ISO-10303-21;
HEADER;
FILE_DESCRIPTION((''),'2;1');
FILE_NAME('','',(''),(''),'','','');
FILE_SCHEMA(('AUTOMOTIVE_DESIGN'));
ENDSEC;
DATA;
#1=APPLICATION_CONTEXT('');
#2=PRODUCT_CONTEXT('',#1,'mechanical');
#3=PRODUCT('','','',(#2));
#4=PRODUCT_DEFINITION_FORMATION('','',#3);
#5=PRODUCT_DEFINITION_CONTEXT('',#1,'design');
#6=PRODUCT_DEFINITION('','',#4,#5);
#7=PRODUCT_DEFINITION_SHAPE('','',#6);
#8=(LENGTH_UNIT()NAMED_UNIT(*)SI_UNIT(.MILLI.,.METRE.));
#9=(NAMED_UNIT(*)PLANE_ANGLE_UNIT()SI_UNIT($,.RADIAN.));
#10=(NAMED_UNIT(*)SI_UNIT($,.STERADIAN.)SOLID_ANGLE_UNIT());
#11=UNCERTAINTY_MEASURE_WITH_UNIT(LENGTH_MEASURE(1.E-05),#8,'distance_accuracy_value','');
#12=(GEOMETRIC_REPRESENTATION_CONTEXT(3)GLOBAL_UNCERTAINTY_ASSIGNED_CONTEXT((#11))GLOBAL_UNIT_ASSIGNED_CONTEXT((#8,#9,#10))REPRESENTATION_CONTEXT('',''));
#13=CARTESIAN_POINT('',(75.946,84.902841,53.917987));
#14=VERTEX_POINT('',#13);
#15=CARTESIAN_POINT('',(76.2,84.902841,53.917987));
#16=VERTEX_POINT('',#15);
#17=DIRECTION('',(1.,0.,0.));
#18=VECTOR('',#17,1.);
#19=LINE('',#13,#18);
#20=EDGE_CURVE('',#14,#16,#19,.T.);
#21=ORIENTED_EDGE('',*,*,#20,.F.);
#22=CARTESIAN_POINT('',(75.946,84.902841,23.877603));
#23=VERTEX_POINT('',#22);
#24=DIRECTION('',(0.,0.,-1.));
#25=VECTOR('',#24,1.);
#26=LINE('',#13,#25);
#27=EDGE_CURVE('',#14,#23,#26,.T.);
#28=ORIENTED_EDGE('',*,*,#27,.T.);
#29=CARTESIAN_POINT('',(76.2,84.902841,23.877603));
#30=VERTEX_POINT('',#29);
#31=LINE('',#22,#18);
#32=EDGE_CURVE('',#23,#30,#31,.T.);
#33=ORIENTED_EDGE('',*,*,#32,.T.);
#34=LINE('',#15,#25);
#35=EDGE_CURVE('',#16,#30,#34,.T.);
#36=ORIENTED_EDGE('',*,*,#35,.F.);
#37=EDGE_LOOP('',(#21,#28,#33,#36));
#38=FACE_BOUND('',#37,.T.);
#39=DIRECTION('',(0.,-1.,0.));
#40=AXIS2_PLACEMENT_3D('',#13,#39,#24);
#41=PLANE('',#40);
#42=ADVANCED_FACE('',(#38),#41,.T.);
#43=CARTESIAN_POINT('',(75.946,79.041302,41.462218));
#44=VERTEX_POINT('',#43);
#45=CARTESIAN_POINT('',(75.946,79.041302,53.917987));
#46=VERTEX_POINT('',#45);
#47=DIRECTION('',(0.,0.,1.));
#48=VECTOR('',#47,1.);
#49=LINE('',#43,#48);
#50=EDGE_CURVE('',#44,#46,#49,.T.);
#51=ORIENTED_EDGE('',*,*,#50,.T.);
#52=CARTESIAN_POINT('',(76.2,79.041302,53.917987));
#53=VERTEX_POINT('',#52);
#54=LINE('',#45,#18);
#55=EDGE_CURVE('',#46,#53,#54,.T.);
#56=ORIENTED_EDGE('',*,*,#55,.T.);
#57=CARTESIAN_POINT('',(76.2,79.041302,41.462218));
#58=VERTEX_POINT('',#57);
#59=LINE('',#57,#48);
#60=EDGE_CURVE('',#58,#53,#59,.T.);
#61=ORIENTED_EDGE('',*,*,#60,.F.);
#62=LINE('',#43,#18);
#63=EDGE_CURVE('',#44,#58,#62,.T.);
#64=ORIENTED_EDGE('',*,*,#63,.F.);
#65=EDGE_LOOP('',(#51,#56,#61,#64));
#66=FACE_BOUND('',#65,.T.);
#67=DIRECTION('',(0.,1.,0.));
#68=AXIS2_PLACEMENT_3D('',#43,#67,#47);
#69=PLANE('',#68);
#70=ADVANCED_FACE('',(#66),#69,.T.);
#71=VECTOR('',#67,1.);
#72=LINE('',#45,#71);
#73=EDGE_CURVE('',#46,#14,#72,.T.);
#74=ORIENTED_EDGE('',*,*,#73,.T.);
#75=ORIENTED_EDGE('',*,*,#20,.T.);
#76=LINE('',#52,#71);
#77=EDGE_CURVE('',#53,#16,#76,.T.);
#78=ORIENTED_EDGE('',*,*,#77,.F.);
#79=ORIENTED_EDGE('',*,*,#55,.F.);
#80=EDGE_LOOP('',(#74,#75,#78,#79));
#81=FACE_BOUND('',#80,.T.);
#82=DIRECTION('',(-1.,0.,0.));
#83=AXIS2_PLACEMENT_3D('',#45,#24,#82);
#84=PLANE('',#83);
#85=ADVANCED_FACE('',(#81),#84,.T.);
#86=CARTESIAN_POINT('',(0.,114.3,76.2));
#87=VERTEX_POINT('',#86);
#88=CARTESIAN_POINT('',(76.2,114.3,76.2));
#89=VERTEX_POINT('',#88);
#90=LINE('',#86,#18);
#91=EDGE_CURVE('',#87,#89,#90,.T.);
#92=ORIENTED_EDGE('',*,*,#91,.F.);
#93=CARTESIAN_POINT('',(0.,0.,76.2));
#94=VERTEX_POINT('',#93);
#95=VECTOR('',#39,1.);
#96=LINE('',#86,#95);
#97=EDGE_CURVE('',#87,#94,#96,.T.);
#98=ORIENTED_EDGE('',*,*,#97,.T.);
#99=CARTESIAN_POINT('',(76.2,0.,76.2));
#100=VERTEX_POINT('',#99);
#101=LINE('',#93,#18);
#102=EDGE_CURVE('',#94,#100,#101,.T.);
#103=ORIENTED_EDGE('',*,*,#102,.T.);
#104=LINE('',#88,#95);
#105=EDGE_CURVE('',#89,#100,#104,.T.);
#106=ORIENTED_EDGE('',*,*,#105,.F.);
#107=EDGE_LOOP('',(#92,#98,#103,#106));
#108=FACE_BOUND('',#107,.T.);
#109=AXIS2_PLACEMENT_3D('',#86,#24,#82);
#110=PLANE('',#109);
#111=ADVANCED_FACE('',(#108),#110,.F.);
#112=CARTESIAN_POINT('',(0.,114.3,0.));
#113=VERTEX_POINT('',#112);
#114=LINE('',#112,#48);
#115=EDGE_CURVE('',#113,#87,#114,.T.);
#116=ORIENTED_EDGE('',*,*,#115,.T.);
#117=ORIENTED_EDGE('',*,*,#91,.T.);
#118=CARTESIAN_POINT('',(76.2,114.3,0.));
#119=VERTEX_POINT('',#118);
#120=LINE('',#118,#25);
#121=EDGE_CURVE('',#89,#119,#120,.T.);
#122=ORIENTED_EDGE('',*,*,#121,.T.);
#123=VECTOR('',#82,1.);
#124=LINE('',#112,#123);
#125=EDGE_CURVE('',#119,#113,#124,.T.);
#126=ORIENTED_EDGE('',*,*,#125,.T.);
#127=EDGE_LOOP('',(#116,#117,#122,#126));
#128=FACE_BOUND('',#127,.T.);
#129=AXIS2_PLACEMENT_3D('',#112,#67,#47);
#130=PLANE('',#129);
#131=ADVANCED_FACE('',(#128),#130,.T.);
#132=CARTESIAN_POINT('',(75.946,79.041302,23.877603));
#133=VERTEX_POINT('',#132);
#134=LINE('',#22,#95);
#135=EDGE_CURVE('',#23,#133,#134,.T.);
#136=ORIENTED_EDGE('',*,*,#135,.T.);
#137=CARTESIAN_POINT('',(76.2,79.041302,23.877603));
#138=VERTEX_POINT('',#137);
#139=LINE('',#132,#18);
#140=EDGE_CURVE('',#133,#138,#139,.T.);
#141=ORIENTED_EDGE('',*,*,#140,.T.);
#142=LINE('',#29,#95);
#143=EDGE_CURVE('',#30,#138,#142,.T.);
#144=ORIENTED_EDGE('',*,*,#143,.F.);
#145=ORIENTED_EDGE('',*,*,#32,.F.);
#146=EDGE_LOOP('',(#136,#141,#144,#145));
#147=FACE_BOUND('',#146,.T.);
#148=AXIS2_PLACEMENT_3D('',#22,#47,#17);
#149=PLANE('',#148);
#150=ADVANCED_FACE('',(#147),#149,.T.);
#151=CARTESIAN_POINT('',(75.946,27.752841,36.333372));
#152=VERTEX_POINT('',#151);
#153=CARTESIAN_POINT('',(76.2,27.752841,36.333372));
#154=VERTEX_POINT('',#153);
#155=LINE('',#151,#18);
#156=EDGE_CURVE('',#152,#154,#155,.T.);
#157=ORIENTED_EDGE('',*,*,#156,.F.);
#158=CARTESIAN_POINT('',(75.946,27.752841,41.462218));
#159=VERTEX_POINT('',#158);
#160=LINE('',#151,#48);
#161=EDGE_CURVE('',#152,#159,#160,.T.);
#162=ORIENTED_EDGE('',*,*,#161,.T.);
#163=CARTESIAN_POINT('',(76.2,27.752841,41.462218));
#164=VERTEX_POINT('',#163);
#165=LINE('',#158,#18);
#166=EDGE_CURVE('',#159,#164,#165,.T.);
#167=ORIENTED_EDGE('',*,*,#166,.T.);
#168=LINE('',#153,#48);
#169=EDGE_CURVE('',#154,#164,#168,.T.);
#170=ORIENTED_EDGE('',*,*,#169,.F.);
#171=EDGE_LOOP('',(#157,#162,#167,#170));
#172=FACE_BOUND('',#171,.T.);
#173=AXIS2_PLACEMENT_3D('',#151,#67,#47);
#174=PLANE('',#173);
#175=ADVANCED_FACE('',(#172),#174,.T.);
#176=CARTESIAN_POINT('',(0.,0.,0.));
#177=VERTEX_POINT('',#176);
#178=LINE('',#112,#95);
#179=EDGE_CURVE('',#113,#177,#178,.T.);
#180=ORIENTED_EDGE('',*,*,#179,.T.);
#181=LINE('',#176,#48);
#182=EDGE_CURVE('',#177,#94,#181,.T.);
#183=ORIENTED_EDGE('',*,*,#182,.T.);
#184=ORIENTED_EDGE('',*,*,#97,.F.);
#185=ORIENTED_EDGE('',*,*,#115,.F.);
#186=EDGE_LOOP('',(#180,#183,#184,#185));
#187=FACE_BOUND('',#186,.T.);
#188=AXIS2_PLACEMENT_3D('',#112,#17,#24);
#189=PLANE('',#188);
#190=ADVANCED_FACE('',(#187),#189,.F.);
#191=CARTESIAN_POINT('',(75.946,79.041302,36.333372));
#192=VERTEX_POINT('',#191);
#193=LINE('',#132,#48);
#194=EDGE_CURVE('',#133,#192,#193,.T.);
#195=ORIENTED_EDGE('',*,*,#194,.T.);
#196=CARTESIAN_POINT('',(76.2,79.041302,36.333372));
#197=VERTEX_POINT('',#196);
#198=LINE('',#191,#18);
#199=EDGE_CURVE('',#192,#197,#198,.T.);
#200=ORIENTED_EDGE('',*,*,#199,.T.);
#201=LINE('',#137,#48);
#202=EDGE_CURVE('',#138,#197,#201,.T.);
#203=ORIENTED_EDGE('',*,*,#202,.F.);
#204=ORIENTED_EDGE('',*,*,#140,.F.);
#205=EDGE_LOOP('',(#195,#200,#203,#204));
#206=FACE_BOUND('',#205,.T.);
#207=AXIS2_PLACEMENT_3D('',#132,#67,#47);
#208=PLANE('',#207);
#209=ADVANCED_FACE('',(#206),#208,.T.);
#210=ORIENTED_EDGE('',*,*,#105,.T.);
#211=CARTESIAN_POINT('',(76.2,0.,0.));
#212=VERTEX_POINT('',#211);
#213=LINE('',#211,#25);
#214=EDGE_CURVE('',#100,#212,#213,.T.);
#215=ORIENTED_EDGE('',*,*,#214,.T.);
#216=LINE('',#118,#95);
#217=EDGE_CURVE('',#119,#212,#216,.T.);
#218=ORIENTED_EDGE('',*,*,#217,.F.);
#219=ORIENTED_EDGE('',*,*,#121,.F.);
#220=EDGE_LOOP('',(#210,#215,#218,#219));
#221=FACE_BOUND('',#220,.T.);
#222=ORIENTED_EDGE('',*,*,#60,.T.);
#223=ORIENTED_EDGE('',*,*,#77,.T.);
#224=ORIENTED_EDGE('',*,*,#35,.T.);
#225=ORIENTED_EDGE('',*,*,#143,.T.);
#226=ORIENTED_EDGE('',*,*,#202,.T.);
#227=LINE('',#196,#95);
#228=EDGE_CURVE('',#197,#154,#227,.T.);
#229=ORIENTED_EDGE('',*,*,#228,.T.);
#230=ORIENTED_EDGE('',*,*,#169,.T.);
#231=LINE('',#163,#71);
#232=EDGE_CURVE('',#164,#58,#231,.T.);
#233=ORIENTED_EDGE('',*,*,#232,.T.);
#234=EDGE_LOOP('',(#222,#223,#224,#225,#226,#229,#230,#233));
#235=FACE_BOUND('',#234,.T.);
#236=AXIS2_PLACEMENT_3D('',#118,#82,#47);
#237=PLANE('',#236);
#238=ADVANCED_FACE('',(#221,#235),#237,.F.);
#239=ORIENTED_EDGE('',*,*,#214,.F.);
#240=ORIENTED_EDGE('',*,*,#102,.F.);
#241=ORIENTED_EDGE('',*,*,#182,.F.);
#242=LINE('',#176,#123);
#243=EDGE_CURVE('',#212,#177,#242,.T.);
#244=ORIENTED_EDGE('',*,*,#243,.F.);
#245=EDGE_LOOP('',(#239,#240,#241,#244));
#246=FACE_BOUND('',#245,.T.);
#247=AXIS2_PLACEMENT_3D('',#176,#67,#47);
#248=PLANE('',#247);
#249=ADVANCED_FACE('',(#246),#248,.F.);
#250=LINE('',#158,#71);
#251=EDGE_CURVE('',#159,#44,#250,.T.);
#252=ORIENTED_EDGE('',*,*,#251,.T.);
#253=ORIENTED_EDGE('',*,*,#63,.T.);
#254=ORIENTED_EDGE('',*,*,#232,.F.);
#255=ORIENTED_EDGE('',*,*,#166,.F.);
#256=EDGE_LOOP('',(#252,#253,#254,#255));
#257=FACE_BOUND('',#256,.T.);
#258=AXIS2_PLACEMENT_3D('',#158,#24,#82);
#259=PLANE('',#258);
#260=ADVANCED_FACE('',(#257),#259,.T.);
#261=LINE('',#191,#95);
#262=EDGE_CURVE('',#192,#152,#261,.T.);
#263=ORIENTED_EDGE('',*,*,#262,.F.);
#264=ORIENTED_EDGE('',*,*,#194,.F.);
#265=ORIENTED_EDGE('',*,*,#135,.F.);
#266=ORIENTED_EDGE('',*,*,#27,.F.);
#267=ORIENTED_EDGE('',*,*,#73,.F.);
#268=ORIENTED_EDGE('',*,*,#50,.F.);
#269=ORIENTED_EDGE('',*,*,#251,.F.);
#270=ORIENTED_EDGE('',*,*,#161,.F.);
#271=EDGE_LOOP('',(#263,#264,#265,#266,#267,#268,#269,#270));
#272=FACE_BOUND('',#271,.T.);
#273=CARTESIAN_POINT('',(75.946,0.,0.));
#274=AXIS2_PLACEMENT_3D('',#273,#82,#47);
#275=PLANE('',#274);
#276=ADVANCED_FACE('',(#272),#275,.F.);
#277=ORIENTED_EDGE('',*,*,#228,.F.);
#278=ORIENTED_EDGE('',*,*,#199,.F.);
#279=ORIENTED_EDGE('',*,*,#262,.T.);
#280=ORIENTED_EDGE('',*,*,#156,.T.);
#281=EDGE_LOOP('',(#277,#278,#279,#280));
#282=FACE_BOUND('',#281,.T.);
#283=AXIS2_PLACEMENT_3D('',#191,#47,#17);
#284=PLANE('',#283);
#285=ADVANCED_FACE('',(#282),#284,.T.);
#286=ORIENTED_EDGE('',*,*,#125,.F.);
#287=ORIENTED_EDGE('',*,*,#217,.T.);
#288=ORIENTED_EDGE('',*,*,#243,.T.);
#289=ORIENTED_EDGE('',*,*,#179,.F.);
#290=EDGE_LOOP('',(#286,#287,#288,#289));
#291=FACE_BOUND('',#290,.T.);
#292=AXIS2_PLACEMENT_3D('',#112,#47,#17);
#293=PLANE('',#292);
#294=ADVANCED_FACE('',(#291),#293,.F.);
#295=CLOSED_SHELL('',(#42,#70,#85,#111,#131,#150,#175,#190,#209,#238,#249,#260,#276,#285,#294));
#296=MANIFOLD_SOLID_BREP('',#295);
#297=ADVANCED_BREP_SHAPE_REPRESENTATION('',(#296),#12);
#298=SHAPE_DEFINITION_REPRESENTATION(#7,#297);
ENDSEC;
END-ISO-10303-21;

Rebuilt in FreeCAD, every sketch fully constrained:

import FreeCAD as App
import Part
import Sketcher
from FreeCAD import Vector
Q = App.Units.Quantity


def add_polygon(sketch, points):
    """Adds a closed chain of lines whose ends are joined by coincident constraints."""
    first, n = sketch.GeometryCount, len(points)
    for a, b in zip(points, points[1:] + points[:1]):
        sketch.addGeometry(Part.LineSegment(App.Vector(*a, 0), App.Vector(*b, 0)), False)
    for i in range(n):
        sketch.addConstraint(Sketcher.Constraint("Coincident", first + i, 2, first + (i + 1) % n, 1))

doc = App.newDocument("Part")
params = doc.addObject("Spreadsheet::Sheet", "Params")
for row, (alias, value) in enumerate([
    ("sketch1_width", "3 in"),
    ("pad1_length", "4.5 in"),
    ("pocket1_length", "0.01 in"),
], start=1):
    params.set(f"A{row}", alias)
    params.set(f"B{row}", "=" + value)
    params.setAlias(f"B{row}", alias)

body = doc.addObject("PartDesign::Body", "Body")

# Sketch on XZ plane
sketch1 = doc.addObject("Sketcher::SketchObject", "Sketch")
body.addObject(sketch1)
sketch1.AttachmentSupport = (doc.XZ_Plane, [""])
sketch1.MapMode = "FlatFace"
add_polygon(sketch1, [(0, 0), (0, 76), (76, 76), (76, 0)])  # lines 0-3
sketch1.addConstraint([
    Sketcher.Constraint("Vertical", 0),
    Sketcher.Constraint("Horizontal", 1),
    Sketcher.Constraint("Vertical", 2),
    Sketcher.Constraint("Horizontal", 3),
    Sketcher.Constraint("Coincident", 3, 2, -1, 1),
    Sketcher.Constraint("Equal", 3, 0),
    Sketcher.Constraint("DistanceX", 1, 1, 1, 2, Q("3 in")),
])
sketch1.setExpression("Constraints[10]", "Params.sketch1_width")
pad1 = doc.addObject("PartDesign::Pad", "Pad")
body.addObject(pad1)
pad1.Profile = sketch1
pad1.setExpression("Length", "Params.pad1_length")
pad1.Reversed = True

# Sketch on YZ plane
sketch2 = doc.addObject("Sketcher::SketchObject", "Sketch001")
body.addObject(sketch2)
sketch2.AttachmentSupport = (doc.YZ_Plane, [""])
sketch2.MapMode = "FlatFace"
sketch2.AttachmentOffset = App.Placement(Vector(0, 0, 3 * 25.4), App.Rotation())
add_polygon(sketch2, [(85, 54), (79, 54), (79, 41), (28, 41), (28, 36), (79, 36), (79, 24), (85, 24)])  # lines 0-7
sketch2.addConstraint([
    Sketcher.Constraint("Horizontal", 0),
    Sketcher.Constraint("Vertical", 1),
    Sketcher.Constraint("Horizontal", 2),
    Sketcher.Constraint("Vertical", 3),
    Sketcher.Constraint("Horizontal", 4),
    Sketcher.Constraint("Vertical", 5),
    Sketcher.Constraint("Horizontal", 6),
    Sketcher.Constraint("Vertical", 7),
    Sketcher.Constraint("Vertical", 1, 2, 4, 2),
    Sketcher.Constraint("Equal", 1, 5),
    Sketcher.Constraint("DistanceX", 3, 2, 6, 2, Q("2.25 in")),
    Sketcher.Constraint("DistanceX", 0, 2, 0, 1, Q("5.861538 mm")),
    Sketcher.Constraint("DistanceY", 1, 2, 1, 1, Q("12.455769 mm")),
    Sketcher.Constraint("DistanceY", 3, 2, 3, 1, Q("5.128846 mm")),
    Sketcher.Constraint("DistanceY", -1, 1, 1, 2, Q("41.462218 mm")),
    Sketcher.Constraint("DistanceX", -1, 1, 2, 2, Q("27.752841 mm")),
])
pocket1 = doc.addObject("PartDesign::Pocket", "Pocket")
body.addObject(pocket1)
pocket1.Profile = sketch2
pocket1.setExpression("Length", "Params.pocket1_length")

doc.recompute()
